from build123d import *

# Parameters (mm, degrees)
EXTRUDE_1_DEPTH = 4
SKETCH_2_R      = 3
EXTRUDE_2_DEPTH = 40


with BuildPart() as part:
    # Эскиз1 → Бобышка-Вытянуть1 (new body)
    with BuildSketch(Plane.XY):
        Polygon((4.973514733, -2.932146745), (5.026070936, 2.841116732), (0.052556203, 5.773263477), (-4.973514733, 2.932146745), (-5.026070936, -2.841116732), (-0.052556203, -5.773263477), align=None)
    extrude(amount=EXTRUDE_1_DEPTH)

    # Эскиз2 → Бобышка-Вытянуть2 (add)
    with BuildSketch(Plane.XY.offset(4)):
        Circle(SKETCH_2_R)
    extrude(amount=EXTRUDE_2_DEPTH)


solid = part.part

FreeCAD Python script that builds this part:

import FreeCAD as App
import Part
import Sketcher
from FreeCAD import Vector
Q = App.Units.Quantity

doc = App.newDocument("Part")
body = doc.addObject("PartDesign::Body", "Body")

sketch1 = body.newObject("Sketcher::SketchObject", "Sketch")
sketch1.AttachmentSupport = (doc.getObject("XY_Plane"), [""])
sketch1.MapMode = "FlatFace"
sketch1.addGeometry([
    Part.LineSegment(Vector(4.973515, -2.932147, 0), Vector(5.026071, 2.841117, 0)),
    Part.LineSegment(Vector(5.026071, 2.841117, 0), Vector(0.052556, 5.773263, 0)),
    Part.LineSegment(Vector(0.052556, 5.773263, 0), Vector(-4.973515, 2.932147, 0)),
    Part.LineSegment(Vector(-4.973515, 2.932147, 0), Vector(-5.026071, -2.841117, 0)),
    Part.LineSegment(Vector(-5.026071, -2.841117, 0), Vector(-0.052556, -5.773263, 0)),
    Part.LineSegment(Vector(-0.052556, -5.773263, 0), Vector(4.973515, -2.932147, 0)),
], False)
sketch1.addConstraint([
    Sketcher.Constraint("Coincident", 0, 2, 1, 1),
    Sketcher.Constraint("Coincident", 1, 2, 2, 1),
    Sketcher.Constraint("Coincident", 2, 2, 3, 1),
    Sketcher.Constraint("Coincident", 3, 2, 4, 1),
    Sketcher.Constraint("Coincident", 4, 2, 5, 1),
    Sketcher.Constraint("Coincident", 5, 2, 0, 1),
    Sketcher.Constraint("Symmetric", 0, 2, 3, 2, -1, 1),
    Sketcher.Constraint("Symmetric", 1, 2, 4, 2, -1, 1),
    Sketcher.Constraint("Symmetric", 2, 2, 5, 2, -1, 1),
    Sketcher.Constraint("Equal", 0, 1),
    Sketcher.Constraint("Equal", 1, 2),
    Sketcher.Constraint("DistanceX", -1, 1, 0, 2, Q("5.026071 mm")),
    Sketcher.Constraint("DistanceX", 2, 2, 1, 2, Q("5.026071 mm")),
    Sketcher.Constraint("DistanceY", 0, 2, 2, 2, Q("0.09103 mm")),
    Sketcher.Constraint("DistanceY", 3, 2, 1, 2, Q("8.61438 mm")),
])
pad1 = body.newObject("PartDesign::Pad", "Pad")
pad1.Profile = sketch1
pad1.Length = 4

sketch2 = body.newObject("Sketcher::SketchObject", "Sketch001")
sketch2.AttachmentSupport = (doc.getObject("XY_Plane"), [""])
sketch2.MapMode = "FlatFace"
sketch2.AttachmentOffset = App.Placement(Vector(0, 0, 4), App.Rotation())
sketch2.addGeometry(Part.Circle(Vector(0, 0, 0), Vector(0, 0, 1), 3), False)
sketch2.addConstraint([
    Sketcher.Constraint("Coincident", 0, 3, -1, 1),
    Sketcher.Constraint("Diameter", 0, Q("6 mm")),
])
pad2 = body.newObject("PartDesign::Pad", "Pad001")
pad2.Profile = sketch2
pad2.Length = 40

doc.recompute()
